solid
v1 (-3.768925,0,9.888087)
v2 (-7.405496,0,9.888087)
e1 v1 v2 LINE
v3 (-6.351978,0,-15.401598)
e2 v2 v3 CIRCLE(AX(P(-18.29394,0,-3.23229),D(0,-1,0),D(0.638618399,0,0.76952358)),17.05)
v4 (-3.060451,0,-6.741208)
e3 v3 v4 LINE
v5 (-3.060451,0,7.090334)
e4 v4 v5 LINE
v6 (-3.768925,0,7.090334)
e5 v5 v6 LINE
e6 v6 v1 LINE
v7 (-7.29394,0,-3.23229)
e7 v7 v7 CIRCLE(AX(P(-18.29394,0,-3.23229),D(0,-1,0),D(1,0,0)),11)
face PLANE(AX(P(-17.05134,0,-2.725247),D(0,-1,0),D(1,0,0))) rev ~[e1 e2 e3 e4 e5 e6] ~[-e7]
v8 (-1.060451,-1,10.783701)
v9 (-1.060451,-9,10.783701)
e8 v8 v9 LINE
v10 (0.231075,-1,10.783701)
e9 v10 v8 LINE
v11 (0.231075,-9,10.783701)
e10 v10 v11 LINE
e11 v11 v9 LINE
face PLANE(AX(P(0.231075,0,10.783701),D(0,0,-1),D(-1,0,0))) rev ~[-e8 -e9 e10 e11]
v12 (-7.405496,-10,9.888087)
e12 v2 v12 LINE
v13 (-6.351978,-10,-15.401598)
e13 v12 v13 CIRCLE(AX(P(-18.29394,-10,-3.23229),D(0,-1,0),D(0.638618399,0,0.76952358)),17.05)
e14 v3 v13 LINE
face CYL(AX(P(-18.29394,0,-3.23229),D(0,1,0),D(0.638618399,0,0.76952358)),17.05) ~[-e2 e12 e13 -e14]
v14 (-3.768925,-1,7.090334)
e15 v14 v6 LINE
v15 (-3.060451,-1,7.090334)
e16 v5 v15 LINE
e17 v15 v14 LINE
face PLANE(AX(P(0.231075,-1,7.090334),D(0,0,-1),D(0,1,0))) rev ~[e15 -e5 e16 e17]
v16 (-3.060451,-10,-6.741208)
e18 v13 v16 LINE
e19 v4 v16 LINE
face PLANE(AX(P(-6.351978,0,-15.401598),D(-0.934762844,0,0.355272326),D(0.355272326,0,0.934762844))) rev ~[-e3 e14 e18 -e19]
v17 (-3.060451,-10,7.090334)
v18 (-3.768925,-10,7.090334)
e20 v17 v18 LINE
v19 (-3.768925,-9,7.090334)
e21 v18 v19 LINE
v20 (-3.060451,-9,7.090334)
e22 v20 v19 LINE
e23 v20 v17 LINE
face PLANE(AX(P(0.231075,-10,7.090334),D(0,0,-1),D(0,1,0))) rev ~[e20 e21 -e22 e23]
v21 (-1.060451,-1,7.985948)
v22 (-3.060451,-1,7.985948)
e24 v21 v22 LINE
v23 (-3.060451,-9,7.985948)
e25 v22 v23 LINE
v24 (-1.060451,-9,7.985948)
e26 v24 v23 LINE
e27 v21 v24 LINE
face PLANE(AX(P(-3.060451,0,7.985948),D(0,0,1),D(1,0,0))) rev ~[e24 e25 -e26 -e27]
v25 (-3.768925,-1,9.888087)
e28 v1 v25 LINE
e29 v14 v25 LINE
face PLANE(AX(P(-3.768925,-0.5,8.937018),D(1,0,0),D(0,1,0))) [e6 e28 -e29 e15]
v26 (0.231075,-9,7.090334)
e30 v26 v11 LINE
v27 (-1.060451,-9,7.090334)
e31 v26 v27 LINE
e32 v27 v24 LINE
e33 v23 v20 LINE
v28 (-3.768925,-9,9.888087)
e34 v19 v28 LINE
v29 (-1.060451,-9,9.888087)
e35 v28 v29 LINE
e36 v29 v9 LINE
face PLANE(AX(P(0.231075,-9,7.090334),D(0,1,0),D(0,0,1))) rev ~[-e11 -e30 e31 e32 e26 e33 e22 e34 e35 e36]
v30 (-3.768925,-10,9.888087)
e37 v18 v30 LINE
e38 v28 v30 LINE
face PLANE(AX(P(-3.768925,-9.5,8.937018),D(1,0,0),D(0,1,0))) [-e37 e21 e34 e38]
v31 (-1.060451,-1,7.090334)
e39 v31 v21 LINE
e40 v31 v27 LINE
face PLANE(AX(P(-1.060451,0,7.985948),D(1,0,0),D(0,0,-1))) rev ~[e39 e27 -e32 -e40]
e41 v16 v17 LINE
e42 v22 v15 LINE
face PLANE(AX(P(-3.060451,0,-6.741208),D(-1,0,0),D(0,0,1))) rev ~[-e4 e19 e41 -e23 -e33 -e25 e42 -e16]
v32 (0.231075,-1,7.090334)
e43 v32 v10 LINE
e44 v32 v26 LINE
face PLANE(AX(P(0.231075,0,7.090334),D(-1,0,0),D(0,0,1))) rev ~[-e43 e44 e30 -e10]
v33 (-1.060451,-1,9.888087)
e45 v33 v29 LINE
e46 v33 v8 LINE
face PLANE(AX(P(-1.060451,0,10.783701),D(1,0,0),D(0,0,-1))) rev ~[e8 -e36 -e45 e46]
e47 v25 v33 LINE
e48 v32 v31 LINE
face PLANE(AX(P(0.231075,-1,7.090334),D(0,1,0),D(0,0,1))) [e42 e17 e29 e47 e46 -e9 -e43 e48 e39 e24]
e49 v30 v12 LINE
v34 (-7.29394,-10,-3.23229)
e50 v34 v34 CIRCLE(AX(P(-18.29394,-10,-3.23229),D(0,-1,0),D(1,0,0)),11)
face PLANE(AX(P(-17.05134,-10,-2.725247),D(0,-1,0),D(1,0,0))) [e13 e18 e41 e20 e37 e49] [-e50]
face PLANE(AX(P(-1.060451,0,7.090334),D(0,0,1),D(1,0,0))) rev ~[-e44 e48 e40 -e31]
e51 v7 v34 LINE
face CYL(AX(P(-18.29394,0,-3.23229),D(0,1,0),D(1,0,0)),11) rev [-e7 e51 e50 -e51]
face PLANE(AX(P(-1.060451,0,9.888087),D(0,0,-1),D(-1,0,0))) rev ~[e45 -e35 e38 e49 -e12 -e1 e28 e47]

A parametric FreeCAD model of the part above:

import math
import FreeCAD as App
import Part
import Sketcher

doc = App.newDocument("Part")
params = doc.addObject("Spreadsheet::Sheet", "Params")
for row, (alias, value) in enumerate([
    ("sketch1_diameter", "22 mm"),
    ("sketch1_width", "2 mm"),
    ("sketch1_radius", "17.05 mm"),
    ("pad1_length", "10 mm"),
    ("sketch2_width", "1 mm"),
    ("pocket1_length", "4 mm"),
], start=1):
    params.set(f"A{row}", alias)
    params.set(f"B{row}", "=" + value)
    params.setAlias(f"B{row}", alias)

body = doc.addObject("PartDesign::Body", "Body")

# Sketch on XZ plane
sketch1 = body.newObject("Sketcher::SketchObject", "Sketch")
sketch1.AttachmentSupport = (doc.getObject("XZ_Plane"), [""])
sketch1.MapMode = "FlatFace"
sketch1.addGeometry(Part.ArcOfCircle(Part.Circle(App.Vector(-18.29394, -3.23229, 0), App.Vector(0, 0, 1), 17.05), math.radians(50.311126), math.radians(314.459773)), False)
sketch1.addGeometry(Part.LineSegment(App.Vector(-6.351978, -15.401598, 0), App.Vector(-3.060451, -6.741208, 0)), False)
sketch1.addGeometry(Part.LineSegment(App.Vector(-3.060451, -6.741208, 0), App.Vector(-3.060451, 7.985948, 0)), False)
sketch1.addGeometry(Part.LineSegment(App.Vector(-3.060451, 7.985948, 0), App.Vector(-1.060451, 7.985948, 0)), False)
sketch1.addGeometry(Part.LineSegment(App.Vector(-1.060451, 7.985948, 0), App.Vector(-1.060451, 7.090334, 0)), False)
sketch1.addGeometry(Part.LineSegment(App.Vector(-1.060451, 7.090334, 0), App.Vector(0.231075, 7.090334, 0)), False)
sketch1.addGeometry(Part.LineSegment(App.Vector(0.231075, 7.090334, 0), App.Vector(0.231075, 10.783701, 0)), False)
sketch1.addGeometry(Part.LineSegment(App.Vector(0.231075, 10.783701, 0), App.Vector(-1.060451, 10.783701, 0)), False)
sketch1.addGeometry(Part.LineSegment(App.Vector(-1.060451, 10.783701, 0), App.Vector(-1.060451, 9.888087, 0)), False)
sketch1.addGeometry(Part.LineSegment(App.Vector(-1.060451, 9.888087, 0), App.Vector(-7.405496, 9.888087, 0)), False)
sketch1.addGeometry(Part.Circle(App.Vector(-18.29394, -3.23229, 0), App.Vector(0, 0, 1), 11), False)
sketch1.addConstraint(Sketcher.Constraint("Coincident", 0, 2, 1, 1))
sketch1.addConstraint(Sketcher.Constraint("Coincident", 1, 2, 2, 1))
sketch1.addConstraint(Sketcher.Constraint("Coincident", 2, 2, 3, 1))
sketch1.addConstraint(Sketcher.Constraint("Coincident", 3, 2, 4, 1))
sketch1.addConstraint(Sketcher.Constraint("Coincident", 4, 2, 5, 1))
sketch1.addConstraint(Sketcher.Constraint("Coincident", 5, 2, 6, 1))
sketch1.addConstraint(Sketcher.Constraint("Coincident", 6, 2, 7, 1))
sketch1.addConstraint(Sketcher.Constraint("Coincident", 7, 2, 8, 1))
sketch1.addConstraint(Sketcher.Constraint("Coincident", 8, 2, 9, 1))
sketch1.addConstraint(Sketcher.Constraint("Coincident", 9, 2, 0, 1))
sketch1.addConstraint(Sketcher.Constraint("Vertical", 2))
sketch1.addConstraint(Sketcher.Constraint("Horizontal", 3))
sketch1.addConstraint(Sketcher.Constraint("Vertical", 4))
sketch1.addConstraint(Sketcher.Constraint("Horizontal", 5))
sketch1.addConstraint(Sketcher.Constraint("Vertical", 6))
sketch1.addConstraint(Sketcher.Constraint("Horizontal", 7))
sketch1.addConstraint(Sketcher.Constraint("Vertical", 8))
sketch1.addConstraint(Sketcher.Constraint("Horizontal", 9))
sketch1.addConstraint(Sketcher.Constraint("Coincident", 10, 3, 0, 3))
sketch1.addConstraint(Sketcher.Constraint("Vertical", 4, 2, 7, 2))
sketch1.addConstraint(Sketcher.Constraint("Equal", 4, 8))
sketch1.addConstraint(Sketcher.Constraint("Diameter", 10, 22.0))
sketch1.addConstraint(Sketcher.Constraint("DistanceX", 3, 1, 3, 2, 2.0))
sketch1.addConstraint(Sketcher.Constraint("Radius", 0, 17.05))
sketch1.addConstraint(Sketcher.Constraint("Distance", 1, 9.264799))
sketch1.addConstraint(Sketcher.Constraint("DistanceY", -1, 1, 6, 2, 10.783701))
sketch1.addConstraint(Sketcher.Constraint("DistanceX", 5, 1, 5, 2, 1.291527))
sketch1.addConstraint(Sketcher.Constraint("DistanceX", 9, 2, 9, 1, 6.345045))
sketch1.addConstraint(Sketcher.Constraint("DistanceY", 2, 1, 2, 2, 14.727156))
sketch1.addConstraint(Sketcher.Constraint("DistanceY", 4, 2, 4, 1, 0.895614))
sketch1.addConstraint(Sketcher.Constraint("DistanceY", 6, 1, 6, 2, 3.693367))
sketch1.addConstraint(Sketcher.Constraint("DistanceX", 0, 3, -1, 1, 18.29394))
sketch1.addConstraint(Sketcher.Constraint("DistanceY", 0, 3, -1, 1, 3.23229))
sketch1.setExpression("Constraints[21]", "Params.sketch1_diameter")
sketch1.setExpression("Constraints[22]", "Params.sketch1_width")
sketch1.setExpression("Constraints[23]", "Params.sketch1_radius")
pad1 = body.newObject("PartDesign::Pad", "Pad")
pad1.Profile = sketch1
pad1.setExpression("Length", "Params.pad1_length")

# Sketch on YZ plane
sketch2 = body.newObject("Sketcher::SketchObject", "Sketch001")
sketch2.AttachmentSupport = (doc.getObject("YZ_Plane"), [""])
sketch2.MapMode = "FlatFace"
sketch2.AttachmentOffset = App.Placement(App.Vector(0, 0, 0.231075), App.Rotation())
sketch2.addGeometry(Part.LineSegment(App.Vector(-10, 10.783701, 0), App.Vector(-10, 7.090334, 0)), False)
sketch2.addGeometry(Part.LineSegment(App.Vector(-10, 7.090334, 0), App.Vector(-9, 7.090334, 0)), False)
sketch2.addGeometry(Part.LineSegment(App.Vector(-9, 7.090334, 0), App.Vector(-9, 10.783701, 0)), False)
sketch2.addGeometry(Part.LineSegment(App.Vector(-9, 10.783701, 0), App.Vector(-10, 10.783701, 0)), False)
sketch2.addGeometry(Part.LineSegment(App.Vector(-1, 10.783701, 0), App.Vector(-1, 7.090334, 0)), False)
sketch2.addGeometry(Part.LineSegment(App.Vector(-1, 7.090334, 0), App.Vector(0, 7.090334, 0)), False)
sketch2.addGeometry(Part.LineSegment(App.Vector(0, 7.090334, 0), App.Vector(0, 10.783701, 0)), False)
sketch2.addGeometry(Part.LineSegment(App.Vector(0, 10.783701, 0), App.Vector(-1, 10.783701, 0)), False)
sketch2.addConstraint(Sketcher.Constraint("Coincident", 0, 2, 1, 1))
sketch2.addConstraint(Sketcher.Constraint("Coincident", 1, 2, 2, 1))
sketch2.addConstraint(Sketcher.Constraint("Coincident", 2, 2, 3, 1))
sketch2.addConstraint(Sketcher.Constraint("Coincident", 3, 2, 0, 1))
sketch2.addConstraint(Sketcher.Constraint("Coincident", 4, 2, 5, 1))
sketch2.addConstraint(Sketcher.Constraint("Coincident", 5, 2, 6, 1))
sketch2.addConstraint(Sketcher.Constraint("Coincident", 6, 2, 7, 1))
sketch2.addConstraint(Sketcher.Constraint("Coincident", 7, 2, 4, 1))
sketch2.addConstraint(Sketcher.Constraint("Vertical", 0))
sketch2.addConstraint(Sketcher.Constraint("Horizontal", 1))
sketch2.addConstraint(Sketcher.Constraint("Vertical", 2))
sketch2.addConstraint(Sketcher.Constraint("Horizontal", 3))
sketch2.addConstraint(Sketcher.Constraint("Vertical", 4))
sketch2.addConstraint(Sketcher.Constraint("Horizontal", 5))
sketch2.addConstraint(Sketcher.Constraint("Vertical", 6))
sketch2.addConstraint(Sketcher.Constraint("Horizontal", 7))
sketch2.addConstraint(Sketcher.Constraint("PointOnObject", 5, 2, -2))
sketch2.addConstraint(Sketcher.Constraint("Horizontal", 1, 2, 4, 2))
sketch2.addConstraint(Sketcher.Constraint("Horizontal", 3, 2, 6, 2))
sketch2.addConstraint(Sketcher.Constraint("Equal", 3, 5))
sketch2.addConstraint(Sketcher.Constraint("DistanceX", 1, 1, 1, 2, 1.0))
sketch2.addConstraint(Sketcher.Constraint("DistanceX", 0, 2, -1, 1, 10.0))
sketch2.addConstraint(Sketcher.Constraint("DistanceY", -1, 1, 2, 2, 10.783701))
sketch2.addConstraint(Sketcher.Constraint("DistanceY", 0, 2, 0, 1, 3.693367))
sketch2.setExpression("Constraints[20]", "Params.sketch2_width")
pocket1 = body.newObject("PartDesign::Pocket", "Pocket")
pocket1.Profile = sketch2
pocket1.setExpression("Length", "Params.pocket1_length")

doc.recompute()
